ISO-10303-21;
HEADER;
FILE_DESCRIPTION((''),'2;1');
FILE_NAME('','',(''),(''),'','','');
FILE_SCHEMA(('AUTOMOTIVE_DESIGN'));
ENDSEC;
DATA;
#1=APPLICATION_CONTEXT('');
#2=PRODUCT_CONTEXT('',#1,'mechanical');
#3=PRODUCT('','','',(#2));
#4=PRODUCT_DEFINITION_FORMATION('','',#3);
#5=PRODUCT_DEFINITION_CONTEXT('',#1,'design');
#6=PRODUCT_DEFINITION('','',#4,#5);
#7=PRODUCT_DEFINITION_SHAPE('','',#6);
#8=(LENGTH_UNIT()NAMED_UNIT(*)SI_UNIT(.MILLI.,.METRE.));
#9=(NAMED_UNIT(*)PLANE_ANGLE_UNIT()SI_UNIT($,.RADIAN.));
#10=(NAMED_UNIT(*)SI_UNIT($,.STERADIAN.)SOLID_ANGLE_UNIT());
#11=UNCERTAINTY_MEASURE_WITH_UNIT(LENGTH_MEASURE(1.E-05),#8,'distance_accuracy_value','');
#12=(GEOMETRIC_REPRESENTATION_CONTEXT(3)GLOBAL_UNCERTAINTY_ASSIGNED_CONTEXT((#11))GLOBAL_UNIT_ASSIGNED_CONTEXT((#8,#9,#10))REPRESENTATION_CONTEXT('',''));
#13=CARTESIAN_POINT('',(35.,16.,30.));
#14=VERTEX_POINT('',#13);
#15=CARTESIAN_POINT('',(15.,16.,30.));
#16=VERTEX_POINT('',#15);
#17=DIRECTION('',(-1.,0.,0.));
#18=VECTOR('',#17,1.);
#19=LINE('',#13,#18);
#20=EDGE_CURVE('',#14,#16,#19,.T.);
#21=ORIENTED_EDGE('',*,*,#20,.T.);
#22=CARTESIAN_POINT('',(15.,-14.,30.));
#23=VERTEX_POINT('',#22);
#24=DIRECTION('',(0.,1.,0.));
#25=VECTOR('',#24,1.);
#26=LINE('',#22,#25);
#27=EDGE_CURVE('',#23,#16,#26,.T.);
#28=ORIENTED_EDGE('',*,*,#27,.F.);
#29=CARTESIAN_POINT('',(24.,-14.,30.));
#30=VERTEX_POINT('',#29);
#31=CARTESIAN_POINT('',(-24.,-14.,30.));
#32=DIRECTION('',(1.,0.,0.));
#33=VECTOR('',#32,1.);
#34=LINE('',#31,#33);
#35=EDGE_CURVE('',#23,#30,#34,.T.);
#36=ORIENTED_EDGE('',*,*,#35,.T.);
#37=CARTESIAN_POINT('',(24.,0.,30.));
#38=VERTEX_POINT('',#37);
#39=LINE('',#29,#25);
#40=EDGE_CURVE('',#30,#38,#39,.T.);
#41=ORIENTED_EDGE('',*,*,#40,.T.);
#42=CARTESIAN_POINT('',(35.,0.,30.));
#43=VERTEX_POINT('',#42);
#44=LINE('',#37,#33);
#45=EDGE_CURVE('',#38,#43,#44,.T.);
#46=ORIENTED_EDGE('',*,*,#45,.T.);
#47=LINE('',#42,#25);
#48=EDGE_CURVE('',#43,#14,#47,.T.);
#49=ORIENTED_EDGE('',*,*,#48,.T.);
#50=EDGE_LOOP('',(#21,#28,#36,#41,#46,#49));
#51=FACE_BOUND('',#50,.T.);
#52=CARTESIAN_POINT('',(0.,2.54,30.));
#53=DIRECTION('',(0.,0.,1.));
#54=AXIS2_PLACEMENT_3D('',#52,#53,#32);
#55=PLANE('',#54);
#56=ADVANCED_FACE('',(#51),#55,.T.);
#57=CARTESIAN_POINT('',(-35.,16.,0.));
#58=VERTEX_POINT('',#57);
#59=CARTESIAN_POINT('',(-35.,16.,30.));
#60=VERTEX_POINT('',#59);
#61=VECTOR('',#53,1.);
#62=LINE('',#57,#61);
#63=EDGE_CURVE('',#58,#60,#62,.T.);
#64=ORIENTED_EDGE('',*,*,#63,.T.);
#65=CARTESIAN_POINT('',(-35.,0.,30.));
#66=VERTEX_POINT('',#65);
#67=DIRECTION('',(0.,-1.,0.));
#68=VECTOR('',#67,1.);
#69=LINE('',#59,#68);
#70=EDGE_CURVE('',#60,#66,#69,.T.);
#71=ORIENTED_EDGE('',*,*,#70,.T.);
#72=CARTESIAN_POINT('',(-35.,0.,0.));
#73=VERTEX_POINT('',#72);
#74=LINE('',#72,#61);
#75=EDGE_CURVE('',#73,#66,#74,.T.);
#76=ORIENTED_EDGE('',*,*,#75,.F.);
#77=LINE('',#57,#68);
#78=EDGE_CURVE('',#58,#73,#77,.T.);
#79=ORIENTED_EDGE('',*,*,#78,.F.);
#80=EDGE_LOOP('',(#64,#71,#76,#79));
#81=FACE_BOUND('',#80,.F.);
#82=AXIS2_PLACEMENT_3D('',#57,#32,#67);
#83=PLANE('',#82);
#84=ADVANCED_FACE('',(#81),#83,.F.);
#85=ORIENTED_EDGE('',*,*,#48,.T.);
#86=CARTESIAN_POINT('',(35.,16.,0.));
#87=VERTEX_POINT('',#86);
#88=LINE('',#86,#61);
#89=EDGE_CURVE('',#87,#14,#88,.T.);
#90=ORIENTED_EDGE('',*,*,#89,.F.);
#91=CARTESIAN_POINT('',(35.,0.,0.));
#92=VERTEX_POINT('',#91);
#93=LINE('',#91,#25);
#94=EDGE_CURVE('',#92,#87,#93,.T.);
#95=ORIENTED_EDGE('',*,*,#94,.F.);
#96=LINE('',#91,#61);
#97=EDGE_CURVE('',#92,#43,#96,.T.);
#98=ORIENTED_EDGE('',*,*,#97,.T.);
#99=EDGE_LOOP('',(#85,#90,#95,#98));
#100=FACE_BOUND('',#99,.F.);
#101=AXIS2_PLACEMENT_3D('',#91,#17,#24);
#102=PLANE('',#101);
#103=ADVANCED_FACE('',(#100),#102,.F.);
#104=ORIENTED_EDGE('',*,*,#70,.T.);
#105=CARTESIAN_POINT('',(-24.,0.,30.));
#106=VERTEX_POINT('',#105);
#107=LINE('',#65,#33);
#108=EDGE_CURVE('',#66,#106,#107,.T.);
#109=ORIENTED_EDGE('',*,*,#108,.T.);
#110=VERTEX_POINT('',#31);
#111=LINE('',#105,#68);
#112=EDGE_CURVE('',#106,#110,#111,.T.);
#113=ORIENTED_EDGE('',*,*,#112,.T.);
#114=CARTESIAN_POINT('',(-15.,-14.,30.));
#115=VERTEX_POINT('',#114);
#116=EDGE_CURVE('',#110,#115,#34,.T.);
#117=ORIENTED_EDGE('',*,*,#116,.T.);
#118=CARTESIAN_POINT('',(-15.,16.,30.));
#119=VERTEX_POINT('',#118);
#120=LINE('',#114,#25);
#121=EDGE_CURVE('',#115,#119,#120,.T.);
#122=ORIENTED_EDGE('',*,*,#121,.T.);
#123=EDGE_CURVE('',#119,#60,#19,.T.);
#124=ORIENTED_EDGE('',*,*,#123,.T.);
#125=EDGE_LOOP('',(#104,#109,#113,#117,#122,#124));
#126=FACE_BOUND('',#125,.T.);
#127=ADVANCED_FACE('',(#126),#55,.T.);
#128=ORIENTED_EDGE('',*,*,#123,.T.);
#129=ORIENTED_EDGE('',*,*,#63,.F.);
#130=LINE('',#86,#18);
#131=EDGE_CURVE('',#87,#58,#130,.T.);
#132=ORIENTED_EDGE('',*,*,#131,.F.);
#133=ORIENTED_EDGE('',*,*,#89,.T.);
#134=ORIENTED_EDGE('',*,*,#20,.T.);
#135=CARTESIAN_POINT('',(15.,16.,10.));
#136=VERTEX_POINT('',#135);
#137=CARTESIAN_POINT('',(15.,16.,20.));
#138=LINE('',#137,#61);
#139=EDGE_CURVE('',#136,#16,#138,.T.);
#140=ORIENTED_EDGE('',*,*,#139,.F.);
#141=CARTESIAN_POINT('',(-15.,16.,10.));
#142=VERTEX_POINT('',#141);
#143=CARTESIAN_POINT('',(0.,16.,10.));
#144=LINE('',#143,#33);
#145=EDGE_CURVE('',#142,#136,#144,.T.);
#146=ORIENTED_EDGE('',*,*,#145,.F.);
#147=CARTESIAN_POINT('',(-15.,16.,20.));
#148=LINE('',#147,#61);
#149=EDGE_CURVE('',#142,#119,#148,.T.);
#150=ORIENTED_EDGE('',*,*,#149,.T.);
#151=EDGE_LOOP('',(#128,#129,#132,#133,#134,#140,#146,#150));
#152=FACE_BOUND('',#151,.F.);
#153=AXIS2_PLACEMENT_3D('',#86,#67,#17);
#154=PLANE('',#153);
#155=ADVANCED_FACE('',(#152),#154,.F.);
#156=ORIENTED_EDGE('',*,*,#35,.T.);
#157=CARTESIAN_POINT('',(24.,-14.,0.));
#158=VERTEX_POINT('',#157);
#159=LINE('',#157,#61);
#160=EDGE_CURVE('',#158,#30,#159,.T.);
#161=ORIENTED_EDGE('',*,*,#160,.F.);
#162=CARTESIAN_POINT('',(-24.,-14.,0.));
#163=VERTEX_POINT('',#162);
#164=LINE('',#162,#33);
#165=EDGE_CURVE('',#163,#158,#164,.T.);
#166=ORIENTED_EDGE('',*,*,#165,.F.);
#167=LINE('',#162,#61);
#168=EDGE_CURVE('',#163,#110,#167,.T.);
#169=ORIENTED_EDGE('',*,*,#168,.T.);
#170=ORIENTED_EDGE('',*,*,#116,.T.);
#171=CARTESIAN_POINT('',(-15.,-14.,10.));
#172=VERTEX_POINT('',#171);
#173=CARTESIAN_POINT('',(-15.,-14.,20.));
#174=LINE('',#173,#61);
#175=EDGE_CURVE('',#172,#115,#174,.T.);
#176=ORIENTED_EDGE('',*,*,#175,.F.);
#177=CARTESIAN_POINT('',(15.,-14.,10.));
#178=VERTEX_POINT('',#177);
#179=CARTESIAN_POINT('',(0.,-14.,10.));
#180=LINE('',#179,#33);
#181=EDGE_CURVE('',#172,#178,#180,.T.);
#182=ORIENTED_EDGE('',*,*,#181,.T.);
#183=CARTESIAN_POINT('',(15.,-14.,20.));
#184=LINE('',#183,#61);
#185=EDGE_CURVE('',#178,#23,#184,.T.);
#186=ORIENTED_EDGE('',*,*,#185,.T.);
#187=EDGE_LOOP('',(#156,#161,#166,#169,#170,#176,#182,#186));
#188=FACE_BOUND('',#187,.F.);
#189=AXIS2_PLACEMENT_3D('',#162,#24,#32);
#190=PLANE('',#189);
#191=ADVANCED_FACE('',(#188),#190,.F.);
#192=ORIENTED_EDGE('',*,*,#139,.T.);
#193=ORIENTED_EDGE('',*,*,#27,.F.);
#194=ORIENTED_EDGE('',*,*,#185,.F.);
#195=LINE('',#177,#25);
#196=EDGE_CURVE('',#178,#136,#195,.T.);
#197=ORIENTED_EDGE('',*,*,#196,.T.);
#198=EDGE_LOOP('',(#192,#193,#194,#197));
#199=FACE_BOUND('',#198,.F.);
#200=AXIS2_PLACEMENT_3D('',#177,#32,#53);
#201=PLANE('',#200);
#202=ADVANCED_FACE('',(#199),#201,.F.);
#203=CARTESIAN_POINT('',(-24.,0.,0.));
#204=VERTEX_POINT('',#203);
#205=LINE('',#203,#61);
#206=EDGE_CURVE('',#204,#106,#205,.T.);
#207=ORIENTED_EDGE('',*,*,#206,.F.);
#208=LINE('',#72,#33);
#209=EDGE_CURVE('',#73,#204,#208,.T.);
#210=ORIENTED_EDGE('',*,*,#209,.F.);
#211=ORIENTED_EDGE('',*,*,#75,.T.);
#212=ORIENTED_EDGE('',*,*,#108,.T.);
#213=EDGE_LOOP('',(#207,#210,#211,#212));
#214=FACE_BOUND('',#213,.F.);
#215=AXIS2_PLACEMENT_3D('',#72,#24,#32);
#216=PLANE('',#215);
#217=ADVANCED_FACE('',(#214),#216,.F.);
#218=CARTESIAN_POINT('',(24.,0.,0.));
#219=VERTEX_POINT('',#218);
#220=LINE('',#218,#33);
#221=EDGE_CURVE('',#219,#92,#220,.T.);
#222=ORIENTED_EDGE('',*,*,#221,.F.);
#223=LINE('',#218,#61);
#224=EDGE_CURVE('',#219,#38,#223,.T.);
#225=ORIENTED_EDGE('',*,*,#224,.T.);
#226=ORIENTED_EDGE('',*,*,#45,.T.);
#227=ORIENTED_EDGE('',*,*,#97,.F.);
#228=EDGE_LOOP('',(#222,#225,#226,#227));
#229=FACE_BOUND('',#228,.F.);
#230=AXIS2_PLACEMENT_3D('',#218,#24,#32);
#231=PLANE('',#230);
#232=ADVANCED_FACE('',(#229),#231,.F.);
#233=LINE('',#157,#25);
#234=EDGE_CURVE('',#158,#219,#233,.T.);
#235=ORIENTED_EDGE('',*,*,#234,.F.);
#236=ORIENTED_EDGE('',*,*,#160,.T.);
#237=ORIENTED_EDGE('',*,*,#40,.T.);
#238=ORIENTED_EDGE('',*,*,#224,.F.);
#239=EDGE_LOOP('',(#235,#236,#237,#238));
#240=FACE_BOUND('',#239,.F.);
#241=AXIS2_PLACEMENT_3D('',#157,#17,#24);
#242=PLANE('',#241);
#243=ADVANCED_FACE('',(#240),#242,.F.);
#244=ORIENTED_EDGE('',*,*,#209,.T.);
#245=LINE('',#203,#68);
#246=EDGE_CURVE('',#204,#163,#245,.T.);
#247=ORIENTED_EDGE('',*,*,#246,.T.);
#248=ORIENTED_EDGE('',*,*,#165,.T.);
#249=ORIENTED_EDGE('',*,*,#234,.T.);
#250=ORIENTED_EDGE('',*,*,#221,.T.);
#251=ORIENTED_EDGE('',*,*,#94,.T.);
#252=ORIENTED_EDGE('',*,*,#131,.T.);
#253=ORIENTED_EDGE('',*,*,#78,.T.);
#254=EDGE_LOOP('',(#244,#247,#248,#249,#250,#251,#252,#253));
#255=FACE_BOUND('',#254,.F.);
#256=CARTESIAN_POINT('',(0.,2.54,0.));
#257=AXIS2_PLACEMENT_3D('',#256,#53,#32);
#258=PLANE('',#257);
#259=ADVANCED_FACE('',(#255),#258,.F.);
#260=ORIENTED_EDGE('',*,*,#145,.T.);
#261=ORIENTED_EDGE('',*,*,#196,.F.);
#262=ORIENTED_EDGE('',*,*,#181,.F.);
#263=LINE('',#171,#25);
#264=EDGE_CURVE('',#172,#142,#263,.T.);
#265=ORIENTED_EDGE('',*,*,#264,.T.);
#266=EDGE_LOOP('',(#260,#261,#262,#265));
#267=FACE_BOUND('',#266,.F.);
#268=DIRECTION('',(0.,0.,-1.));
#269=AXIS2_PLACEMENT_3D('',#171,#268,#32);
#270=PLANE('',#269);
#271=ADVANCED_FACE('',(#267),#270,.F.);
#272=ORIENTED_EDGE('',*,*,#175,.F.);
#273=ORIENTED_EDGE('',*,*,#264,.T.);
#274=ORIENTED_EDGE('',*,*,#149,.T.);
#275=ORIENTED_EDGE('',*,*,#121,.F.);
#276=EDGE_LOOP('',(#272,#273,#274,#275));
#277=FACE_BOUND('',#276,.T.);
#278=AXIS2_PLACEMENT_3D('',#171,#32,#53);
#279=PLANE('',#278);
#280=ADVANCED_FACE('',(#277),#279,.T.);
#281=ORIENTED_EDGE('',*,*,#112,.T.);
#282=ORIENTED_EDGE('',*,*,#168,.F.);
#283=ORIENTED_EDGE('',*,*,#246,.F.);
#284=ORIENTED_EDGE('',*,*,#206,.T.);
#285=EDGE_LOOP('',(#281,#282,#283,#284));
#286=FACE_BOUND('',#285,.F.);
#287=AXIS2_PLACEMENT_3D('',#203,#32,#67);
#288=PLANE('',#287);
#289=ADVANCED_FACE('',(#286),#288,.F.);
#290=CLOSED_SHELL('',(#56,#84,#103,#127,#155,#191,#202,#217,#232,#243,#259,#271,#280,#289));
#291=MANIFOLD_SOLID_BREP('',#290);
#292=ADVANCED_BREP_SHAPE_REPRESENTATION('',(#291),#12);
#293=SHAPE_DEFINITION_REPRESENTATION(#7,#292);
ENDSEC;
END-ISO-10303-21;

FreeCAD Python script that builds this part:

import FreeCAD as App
import Part
import Sketcher
Q = App.Units.Quantity

doc = App.newDocument("Part")
params = doc.addObject("Spreadsheet::Sheet", "Params")
for row, (alias, value) in enumerate([
    ("sketch1_width", "70 mm"),
    ("sketch1_width2", "11 mm"),
    ("sketch1_height", "16 mm"),
    ("sketch1_height2", "14 mm"),
    ("pad1_length", "30 mm"),
    ("sketch2_width", "30 mm"),
    ("sketch2_height", "20 mm"),
    ("pocket1_length", "30 mm"),
], start=1):
    params.set(f"A{row}", alias)
    params.set(f"B{row}", "=" + value)
    params.setAlias(f"B{row}", alias)

body = doc.addObject("PartDesign::Body", "Body")

# Sketch on XY plane
sketch1 = body.newObject("Sketcher::SketchObject", "Sketch")
sketch1.AttachmentSupport = (doc.getObject("XY_Plane"), [""])
sketch1.MapMode = "FlatFace"
sketch1.addGeometry(Part.LineSegment(App.Vector(35, 16, 0), App.Vector(-35, 16, 0)), False)
sketch1.addGeometry(Part.LineSegment(App.Vector(-35, 16, 0), App.Vector(-35, 0, 0)), False)
sketch1.addGeometry(Part.LineSegment(App.Vector(-35, 0, 0), App.Vector(-24, 0, 0)), False)
sketch1.addGeometry(Part.LineSegment(App.Vector(-24, 0, 0), App.Vector(-24, -14, 0)), False)
sketch1.addGeometry(Part.LineSegment(App.Vector(-24, -14, 0), App.Vector(24, -14, 0)), False)
sketch1.addGeometry(Part.LineSegment(App.Vector(24, -14, 0), App.Vector(24, 0, 0)), False)
sketch1.addGeometry(Part.LineSegment(App.Vector(24, 0, 0), App.Vector(35, 0, 0)), False)
sketch1.addGeometry(Part.LineSegment(App.Vector(35, 0, 0), App.Vector(35, 16, 0)), False)
sketch1.addConstraint(Sketcher.Constraint("Coincident", 0, 2, 1, 1))
sketch1.addConstraint(Sketcher.Constraint("Coincident", 1, 2, 2, 1))
sketch1.addConstraint(Sketcher.Constraint("Coincident", 2, 2, 3, 1))
sketch1.addConstraint(Sketcher.Constraint("Coincident", 3, 2, 4, 1))
sketch1.addConstraint(Sketcher.Constraint("Coincident", 4, 2, 5, 1))
sketch1.addConstraint(Sketcher.Constraint("Coincident", 5, 2, 6, 1))
sketch1.addConstraint(Sketcher.Constraint("Coincident", 6, 2, 7, 1))
sketch1.addConstraint(Sketcher.Constraint("Coincident", 7, 2, 0, 1))
sketch1.addConstraint(Sketcher.Constraint("Horizontal", 0))
sketch1.addConstraint(Sketcher.Constraint("Vertical", 1))
sketch1.addConstraint(Sketcher.Constraint("Horizontal", 2))
sketch1.addConstraint(Sketcher.Constraint("Vertical", 3))
sketch1.addConstraint(Sketcher.Constraint("Horizontal", 4))
sketch1.addConstraint(Sketcher.Constraint("Vertical", 5))
sketch1.addConstraint(Sketcher.Constraint("Horizontal", 6))
sketch1.addConstraint(Sketcher.Constraint("Vertical", 7))
sketch1.addConstraint(Sketcher.Constraint("Symmetric", 2, 2, 5, 2, -1, 1))
sketch1.addConstraint(Sketcher.Constraint("Symmetric", 1, 2, 6, 2, -2))
sketch1.addConstraint(Sketcher.Constraint("DistanceX", 0, 2, 0, 1, Q("70 mm")))
sketch1.addConstraint(Sketcher.Constraint("DistanceX", 2, 1, 2, 2, Q("11 mm")))
sketch1.addConstraint(Sketcher.Constraint("DistanceY", 1, 2, 1, 1, Q("16 mm")))
sketch1.addConstraint(Sketcher.Constraint("DistanceY", 3, 2, 3, 1, Q("14 mm")))
sketch1.setExpression("Constraints[18]", "Params.sketch1_width")
sketch1.setExpression("Constraints[19]", "Params.sketch1_width2")
sketch1.setExpression("Constraints[20]", "Params.sketch1_height")
sketch1.setExpression("Constraints[21]", "Params.sketch1_height2")
pad1 = body.newObject("PartDesign::Pad", "Pad")
pad1.Profile = sketch1
pad1.setExpression("Length", "Params.pad1_length")

# Sketch on XZ plane
sketch2 = body.newObject("Sketcher::SketchObject", "Sketch001")
sketch2.AttachmentSupport = (doc.getObject("XZ_Plane"), [""])
sketch2.MapMode = "FlatFace"
sketch2.AttachmentOffset = App.Placement(App.Vector(0, 0, 14), App.Rotation())
sketch2.addGeometry(Part.LineSegment(App.Vector(-15, 30, 0), App.Vector(-15, 10, 0)), False)
sketch2.addGeometry(Part.LineSegment(App.Vector(-15, 10, 0), App.Vector(15, 10, 0)), False)
sketch2.addGeometry(Part.LineSegment(App.Vector(15, 10, 0), App.Vector(15, 30, 0)), False)
sketch2.addGeometry(Part.LineSegment(App.Vector(15, 30, 0), App.Vector(-15, 30, 0)), False)
sketch2.addConstraint(Sketcher.Constraint("Coincident", 0, 2, 1, 1))
sketch2.addConstraint(Sketcher.Constraint("Coincident", 1, 2, 2, 1))
sketch2.addConstraint(Sketcher.Constraint("Coincident", 2, 2, 3, 1))
sketch2.addConstraint(Sketcher.Constraint("Coincident", 3, 2, 0, 1))
sketch2.addConstraint(Sketcher.Constraint("Vertical", 0))
sketch2.addConstraint(Sketcher.Constraint("Horizontal", 1))
sketch2.addConstraint(Sketcher.Constraint("Vertical", 2))
sketch2.addConstraint(Sketcher.Constraint("Horizontal", 3))
sketch2.addConstraint(Sketcher.Constraint("DistanceX", 1, 1, 1, 2, Q("30 mm")))
sketch2.addConstraint(Sketcher.Constraint("DistanceY", 0, 2, 0, 1, Q("20 mm")))
sketch2.addConstraint(Sketcher.Constraint("DistanceX", 0, 2, -1, 1, Q("15 mm")))
sketch2.addConstraint(Sketcher.Constraint("DistanceY", -1, 1, 0, 2, Q("10 mm")))
sketch2.setExpression("Constraints[8]", "Params.sketch2_width")
sketch2.setExpression("Constraints[9]", "Params.sketch2_height")
pocket1 = body.newObject("PartDesign::Pocket", "Pocket")
pocket1.Profile = sketch2
pocket1.setExpression("Length", "Params.pocket1_length")

doc.recompute()
